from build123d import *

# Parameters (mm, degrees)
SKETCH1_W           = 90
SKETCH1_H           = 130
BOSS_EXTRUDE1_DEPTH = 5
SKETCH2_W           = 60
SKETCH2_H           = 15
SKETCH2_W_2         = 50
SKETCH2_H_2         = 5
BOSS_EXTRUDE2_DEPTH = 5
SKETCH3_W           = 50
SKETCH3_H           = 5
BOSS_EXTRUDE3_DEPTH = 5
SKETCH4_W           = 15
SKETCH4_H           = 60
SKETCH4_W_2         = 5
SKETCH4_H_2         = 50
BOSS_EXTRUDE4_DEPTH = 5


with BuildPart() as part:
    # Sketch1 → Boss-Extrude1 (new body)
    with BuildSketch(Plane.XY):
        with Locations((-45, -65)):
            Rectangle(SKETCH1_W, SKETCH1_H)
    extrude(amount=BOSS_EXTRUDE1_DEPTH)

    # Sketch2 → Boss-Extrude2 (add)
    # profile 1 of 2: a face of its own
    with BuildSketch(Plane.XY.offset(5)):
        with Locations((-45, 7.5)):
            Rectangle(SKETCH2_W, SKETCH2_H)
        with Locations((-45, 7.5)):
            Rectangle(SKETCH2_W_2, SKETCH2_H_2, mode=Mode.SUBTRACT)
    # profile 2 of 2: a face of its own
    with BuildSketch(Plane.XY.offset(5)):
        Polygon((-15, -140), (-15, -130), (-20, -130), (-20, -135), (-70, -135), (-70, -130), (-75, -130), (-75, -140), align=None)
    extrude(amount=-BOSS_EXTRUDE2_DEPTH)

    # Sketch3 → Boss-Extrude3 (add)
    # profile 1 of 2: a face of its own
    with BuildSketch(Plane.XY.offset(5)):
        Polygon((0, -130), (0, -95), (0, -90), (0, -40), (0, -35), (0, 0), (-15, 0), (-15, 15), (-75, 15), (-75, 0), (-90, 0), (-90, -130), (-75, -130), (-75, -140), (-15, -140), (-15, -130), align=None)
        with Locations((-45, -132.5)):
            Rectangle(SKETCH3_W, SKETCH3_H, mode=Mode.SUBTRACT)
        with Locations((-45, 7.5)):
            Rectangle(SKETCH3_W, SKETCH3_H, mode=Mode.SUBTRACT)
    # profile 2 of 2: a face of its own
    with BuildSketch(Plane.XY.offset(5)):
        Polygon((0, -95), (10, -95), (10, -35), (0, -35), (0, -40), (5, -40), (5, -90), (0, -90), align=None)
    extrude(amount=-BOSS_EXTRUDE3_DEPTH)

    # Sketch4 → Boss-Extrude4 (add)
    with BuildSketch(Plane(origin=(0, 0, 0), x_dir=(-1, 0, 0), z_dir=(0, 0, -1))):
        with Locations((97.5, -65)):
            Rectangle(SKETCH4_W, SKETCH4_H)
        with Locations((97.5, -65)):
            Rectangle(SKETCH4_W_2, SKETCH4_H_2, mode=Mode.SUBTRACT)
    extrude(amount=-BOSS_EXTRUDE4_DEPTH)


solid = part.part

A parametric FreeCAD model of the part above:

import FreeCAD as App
import Part
import Sketcher

V = App.Vector
Q = App.Units.Quantity


def add_polygon(sketch, points):
    """Adds a closed chain of lines whose ends are joined by coincident constraints."""
    first, n = sketch.GeometryCount, len(points)
    for a, b in zip(points, points[1:] + points[:1]):
        sketch.addGeometry(Part.LineSegment(App.Vector(*a, 0), App.Vector(*b, 0)), False)
    for i in range(n):
        sketch.addConstraint(Sketcher.Constraint("Coincident", first + i, 2, first + (i + 1) % n, 1))

doc = App.newDocument("Part")
body = doc.addObject("PartDesign::Body", "Body")

sketch1 = body.newObject("Sketcher::SketchObject", "Sketch")
sketch1.AttachmentSupport = (doc.getObject("XY_Plane"), [""])
sketch1.MapMode = "FlatFace"
add_polygon(sketch1, [(-90, 0), (-90, -130), (0, -130), (0, 0)])
sketch1.addConstraint(Sketcher.Constraint("Vertical", 0))
sketch1.addConstraint(Sketcher.Constraint("Horizontal", 1))
sketch1.addConstraint(Sketcher.Constraint("Vertical", 2))
sketch1.addConstraint(Sketcher.Constraint("Horizontal", 3))
sketch1.addConstraint(Sketcher.Constraint("Coincident", 2, 2, -1, 1))
sketch1.addConstraint(Sketcher.Constraint("DistanceX", 1, 1, 1, 2, Q("90 mm")))
sketch1.addConstraint(Sketcher.Constraint("DistanceY", 0, 2, 0, 1, Q("130 mm")))
pad1 = body.newObject("PartDesign::Pad", "Pad")
pad1.Profile = sketch1
pad1.Length = 5

sketch2 = body.newObject("Sketcher::SketchObject", "Sketch001")
sketch2.AttachmentSupport = (doc.getObject("XY_Plane"), [""])
sketch2.MapMode = "FlatFace"
sketch2.AttachmentOffset = App.Placement(V(0, 0, 5), App.Rotation())
add_polygon(sketch2, [(-75, 15), (-75, 0), (-15, 0), (-15, 15)])
add_polygon(sketch2, [(-20, 5), (-70, 5), (-70, 10), (-20, 10)])
add_polygon(sketch2, [(-15, -140), (-15, -130), (-20, -130), (-20, -135), (-70, -135), (-70, -130), (-75, -130), (-75, -140)])
sketch2.addConstraint(Sketcher.Constraint("Vertical", 0))
sketch2.addConstraint(Sketcher.Constraint("Horizontal", 1))
sketch2.addConstraint(Sketcher.Constraint("Vertical", 2))
sketch2.addConstraint(Sketcher.Constraint("Horizontal", 3))
sketch2.addConstraint(Sketcher.Constraint("Horizontal", 4))
sketch2.addConstraint(Sketcher.Constraint("Vertical", 5))
sketch2.addConstraint(Sketcher.Constraint("Horizontal", 6))
sketch2.addConstraint(Sketcher.Constraint("Vertical", 7))
sketch2.addConstraint(Sketcher.Constraint("Vertical", 8))
sketch2.addConstraint(Sketcher.Constraint("Horizontal", 9))
sketch2.addConstraint(Sketcher.Constraint("Vertical", 10))
sketch2.addConstraint(Sketcher.Constraint("Horizontal", 11))
sketch2.addConstraint(Sketcher.Constraint("Vertical", 12))
sketch2.addConstraint(Sketcher.Constraint("Horizontal", 13))
sketch2.addConstraint(Sketcher.Constraint("Vertical", 14))
sketch2.addConstraint(Sketcher.Constraint("Horizontal", 15))
sketch2.addConstraint(Sketcher.Constraint("PointOnObject", 0, 2, -1))
sketch2.addConstraint(Sketcher.Constraint("Horizontal", 9, 2, 12, 2))
sketch2.addConstraint(Sketcher.Constraint("Vertical", 2, 2, 8, 2))
sketch2.addConstraint(Sketcher.Constraint("Vertical", 7, 2, 9, 2))
sketch2.addConstraint(Sketcher.Constraint("Vertical", 5, 2, 11, 2))
sketch2.addConstraint(Sketcher.Constraint("Vertical", 3, 2, 13, 2))
sketch2.addConstraint(Sketcher.Constraint("Equal", 9, 13))
sketch2.addConstraint(Sketcher.Constraint("Equal", 13, 5))
sketch2.addConstraint(Sketcher.Constraint("Equal", 7, 10))
sketch2.addConstraint(Sketcher.Constraint("DistanceX", 1, 1, 1, 2, Q("60 mm")))
sketch2.addConstraint(Sketcher.Constraint("DistanceX", 4, 2, 4, 1, Q("50 mm")))
sketch2.addConstraint(Sketcher.Constraint("DistanceY", 0, 2, 0, 1, Q("15 mm")))
sketch2.addConstraint(Sketcher.Constraint("DistanceY", 8, 1, 8, 2, Q("10 mm")))
sketch2.addConstraint(Sketcher.Constraint("DistanceX", 0, 2, -1, 1, Q("75 mm")))
sketch2.addConstraint(Sketcher.Constraint("DistanceY", -1, 1, 4, 2, Q("5 mm")))
sketch2.addConstraint(Sketcher.Constraint("DistanceY", 8, 2, -1, 1, Q("130 mm")))
pad2 = body.newObject("PartDesign::Pad", "Pad001")
pad2.Profile = sketch2
pad2.Length = 5
pad2.Reversed = True

sketch3 = body.newObject("Sketcher::SketchObject", "Sketch002")
sketch3.AttachmentSupport = (doc.getObject("XY_Plane"), [""])
sketch3.MapMode = "FlatFace"
sketch3.AttachmentOffset = App.Placement(V(0, 0, 5), App.Rotation())
add_polygon(sketch3, [(0, -130), (0, -95), (10, -95), (10, -35), (0, -35), (0, 0), (-15, 0), (-15, 15), (-75, 15), (-75, 0), (-90, 0), (-90, -130), (-75, -130), (-75, -140), (-15, -140), (-15, -130)])
add_polygon(sketch3, [(0, -90), (0, -40), (5, -40), (5, -90)])
add_polygon(sketch3, [(-20, -135), (-70, -135), (-70, -130), (-20, -130)])
add_polygon(sketch3, [(-20, 5), (-70, 5), (-70, 10), (-20, 10)])
sketch3.addConstraint(Sketcher.Constraint("Vertical", 0))
sketch3.addConstraint(Sketcher.Constraint("Horizontal", 1))
sketch3.addConstraint(Sketcher.Constraint("Vertical", 2))
sketch3.addConstraint(Sketcher.Constraint("Horizontal", 3))
sketch3.addConstraint(Sketcher.Constraint("Vertical", 4))
sketch3.addConstraint(Sketcher.Constraint("Horizontal", 5))
sketch3.addConstraint(Sketcher.Constraint("Vertical", 6))
sketch3.addConstraint(Sketcher.Constraint("Horizontal", 7))
sketch3.addConstraint(Sketcher.Constraint("Vertical", 8))
sketch3.addConstraint(Sketcher.Constraint("Horizontal", 9))
sketch3.addConstraint(Sketcher.Constraint("Vertical", 10))
sketch3.addConstraint(Sketcher.Constraint("Horizontal", 11))
sketch3.addConstraint(Sketcher.Constraint("Vertical", 12))
sketch3.addConstraint(Sketcher.Constraint("Horizontal", 13))
sketch3.addConstraint(Sketcher.Constraint("Vertical", 14))
sketch3.addConstraint(Sketcher.Constraint("Horizontal", 15))
sketch3.addConstraint(Sketcher.Constraint("Vertical", 16))
sketch3.addConstraint(Sketcher.Constraint("Horizontal", 17))
sketch3.addConstraint(Sketcher.Constraint("Vertical", 18))
sketch3.addConstraint(Sketcher.Constraint("Horizontal", 19))
sketch3.addConstraint(Sketcher.Constraint("Horizontal", 20))
sketch3.addConstraint(Sketcher.Constraint("Vertical", 21))
sketch3.addConstraint(Sketcher.Constraint("Horizontal", 22))
sketch3.addConstraint(Sketcher.Constraint("Vertical", 23))
sketch3.addConstraint(Sketcher.Constraint("Horizontal", 24))
sketch3.addConstraint(Sketcher.Constraint("Vertical", 25))
sketch3.addConstraint(Sketcher.Constraint("Horizontal", 26))
sketch3.addConstraint(Sketcher.Constraint("Vertical", 27))
sketch3.addConstraint(Sketcher.Constraint("Coincident", 4, 2, -1, 1))
sketch3.addConstraint(Sketcher.Constraint("PointOnObject", 0, 2, -2))
sketch3.addConstraint(Sketcher.Constraint("PointOnObject", 8, 2, -1))
sketch3.addConstraint(Sketcher.Constraint("PointOnObject", 16, 2, -2))
sketch3.addConstraint(Sketcher.Constraint("Horizontal", 11, 2, 14, 2))
sketch3.addConstraint(Sketcher.Constraint("Horizontal", 15, 2, 21, 2))
sketch3.addConstraint(Sketcher.Constraint("Vertical", 8, 2, 11, 2))
sketch3.addConstraint(Sketcher.Constraint("Vertical", 6, 2, 13, 2))
sketch3.addConstraint(Sketcher.Constraint("Vertical", 21, 2, 24, 2))
sketch3.addConstraint(Sketcher.Constraint("Vertical", 23, 2, 26, 2))
sketch3.addConstraint(Sketcher.Constraint("Equal", 5, 9))
sketch3.addConstraint(Sketcher.Constraint("Equal", 13, 2))
sketch3.addConstraint(Sketcher.Constraint("Equal", 0, 4))
sketch3.addConstraint(Sketcher.Constraint("Equal", 15, 6))
sketch3.addConstraint(Sketcher.Constraint("Equal", 3, 12))
sketch3.addConstraint(Sketcher.Constraint("Equal", 26, 16))
sketch3.addConstraint(Sketcher.Constraint("Equal", 19, 21))
sketch3.addConstraint(Sketcher.Constraint("Equal", 23, 25))
sketch3.addConstraint(Sketcher.Constraint("DistanceX", 1, 1, 1, 2, Q("10 mm")))
sketch3.addConstraint(Sketcher.Constraint("DistanceX", 5, 2, 5, 1, Q("15 mm")))
sketch3.addConstraint(Sketcher.Constraint("DistanceX", 7, 2, 7, 1, Q("60 mm")))
sketch3.addConstraint(Sketcher.Constraint("DistanceX", 17, 1, 17, 2, Q("5 mm")))
sketch3.addConstraint(Sketcher.Constraint("DistanceX", 20, 2, 20, 1, Q("50 mm")))
sketch3.addConstraint(Sketcher.Constraint("DistanceY", 0, 1, 0, 2, Q("35 mm")))
sketch3.addConstraint(Sketcher.Constraint("DistanceY", 16, 2, -1, 1, Q("40 mm")))
sketch3.addConstraint(Sketcher.Constraint("DistanceX", 20, 2, -1, 1, Q("70 mm")))
sketch3.addConstraint(Sketcher.Constraint("DistanceY", -1, 1, 24, 2, Q("5 mm")))
pad3 = body.newObject("PartDesign::Pad", "Pad002")
pad3.Profile = sketch3
pad3.Length = 5
pad3.Reversed = True

sketch4 = body.newObject("Sketcher::SketchObject", "Sketch003")
sketch4.AttachmentSupport = (doc.getObject("XY_Plane"), [""])
sketch4.MapMode = "FlatFace"
add_polygon(sketch4, [(-90, -35), (-90, -95), (-105, -95), (-105, -35)])
add_polygon(sketch4, [(-100, -90), (-95, -90), (-95, -40), (-100, -40)])
sketch4.addConstraint(Sketcher.Constraint("Vertical", 0))
sketch4.addConstraint(Sketcher.Constraint("Horizontal", 1))
sketch4.addConstraint(Sketcher.Constraint("Vertical", 2))
sketch4.addConstraint(Sketcher.Constraint("Horizontal", 3))
sketch4.addConstraint(Sketcher.Constraint("Horizontal", 4))
sketch4.addConstraint(Sketcher.Constraint("Vertical", 5))
sketch4.addConstraint(Sketcher.Constraint("Horizontal", 6))
sketch4.addConstraint(Sketcher.Constraint("Vertical", 7))
sketch4.addConstraint(Sketcher.Constraint("DistanceX", 1, 2, 1, 1, Q("15 mm")))
sketch4.addConstraint(Sketcher.Constraint("DistanceX", 4, 1, 4, 2, Q("5 mm")))
sketch4.addConstraint(Sketcher.Constraint("DistanceY", 0, 2, 0, 1, Q("60 mm")))
sketch4.addConstraint(Sketcher.Constraint("DistanceY", 5, 1, 5, 2, Q("50 mm")))
sketch4.addConstraint(Sketcher.Constraint("DistanceX", 0, 2, -1, 1, Q("90 mm")))
sketch4.addConstraint(Sketcher.Constraint("DistanceY", 0, 2, -1, 1, Q("95 mm")))
sketch4.addConstraint(Sketcher.Constraint("DistanceX", 4, 2, -1, 1, Q("95 mm")))
sketch4.addConstraint(Sketcher.Constraint("DistanceY", 4, 2, -1, 1, Q("90 mm")))
pad4 = body.newObject("PartDesign::Pad", "Pad003")
pad4.Profile = sketch4
pad4.Length = 5

doc.recompute()
